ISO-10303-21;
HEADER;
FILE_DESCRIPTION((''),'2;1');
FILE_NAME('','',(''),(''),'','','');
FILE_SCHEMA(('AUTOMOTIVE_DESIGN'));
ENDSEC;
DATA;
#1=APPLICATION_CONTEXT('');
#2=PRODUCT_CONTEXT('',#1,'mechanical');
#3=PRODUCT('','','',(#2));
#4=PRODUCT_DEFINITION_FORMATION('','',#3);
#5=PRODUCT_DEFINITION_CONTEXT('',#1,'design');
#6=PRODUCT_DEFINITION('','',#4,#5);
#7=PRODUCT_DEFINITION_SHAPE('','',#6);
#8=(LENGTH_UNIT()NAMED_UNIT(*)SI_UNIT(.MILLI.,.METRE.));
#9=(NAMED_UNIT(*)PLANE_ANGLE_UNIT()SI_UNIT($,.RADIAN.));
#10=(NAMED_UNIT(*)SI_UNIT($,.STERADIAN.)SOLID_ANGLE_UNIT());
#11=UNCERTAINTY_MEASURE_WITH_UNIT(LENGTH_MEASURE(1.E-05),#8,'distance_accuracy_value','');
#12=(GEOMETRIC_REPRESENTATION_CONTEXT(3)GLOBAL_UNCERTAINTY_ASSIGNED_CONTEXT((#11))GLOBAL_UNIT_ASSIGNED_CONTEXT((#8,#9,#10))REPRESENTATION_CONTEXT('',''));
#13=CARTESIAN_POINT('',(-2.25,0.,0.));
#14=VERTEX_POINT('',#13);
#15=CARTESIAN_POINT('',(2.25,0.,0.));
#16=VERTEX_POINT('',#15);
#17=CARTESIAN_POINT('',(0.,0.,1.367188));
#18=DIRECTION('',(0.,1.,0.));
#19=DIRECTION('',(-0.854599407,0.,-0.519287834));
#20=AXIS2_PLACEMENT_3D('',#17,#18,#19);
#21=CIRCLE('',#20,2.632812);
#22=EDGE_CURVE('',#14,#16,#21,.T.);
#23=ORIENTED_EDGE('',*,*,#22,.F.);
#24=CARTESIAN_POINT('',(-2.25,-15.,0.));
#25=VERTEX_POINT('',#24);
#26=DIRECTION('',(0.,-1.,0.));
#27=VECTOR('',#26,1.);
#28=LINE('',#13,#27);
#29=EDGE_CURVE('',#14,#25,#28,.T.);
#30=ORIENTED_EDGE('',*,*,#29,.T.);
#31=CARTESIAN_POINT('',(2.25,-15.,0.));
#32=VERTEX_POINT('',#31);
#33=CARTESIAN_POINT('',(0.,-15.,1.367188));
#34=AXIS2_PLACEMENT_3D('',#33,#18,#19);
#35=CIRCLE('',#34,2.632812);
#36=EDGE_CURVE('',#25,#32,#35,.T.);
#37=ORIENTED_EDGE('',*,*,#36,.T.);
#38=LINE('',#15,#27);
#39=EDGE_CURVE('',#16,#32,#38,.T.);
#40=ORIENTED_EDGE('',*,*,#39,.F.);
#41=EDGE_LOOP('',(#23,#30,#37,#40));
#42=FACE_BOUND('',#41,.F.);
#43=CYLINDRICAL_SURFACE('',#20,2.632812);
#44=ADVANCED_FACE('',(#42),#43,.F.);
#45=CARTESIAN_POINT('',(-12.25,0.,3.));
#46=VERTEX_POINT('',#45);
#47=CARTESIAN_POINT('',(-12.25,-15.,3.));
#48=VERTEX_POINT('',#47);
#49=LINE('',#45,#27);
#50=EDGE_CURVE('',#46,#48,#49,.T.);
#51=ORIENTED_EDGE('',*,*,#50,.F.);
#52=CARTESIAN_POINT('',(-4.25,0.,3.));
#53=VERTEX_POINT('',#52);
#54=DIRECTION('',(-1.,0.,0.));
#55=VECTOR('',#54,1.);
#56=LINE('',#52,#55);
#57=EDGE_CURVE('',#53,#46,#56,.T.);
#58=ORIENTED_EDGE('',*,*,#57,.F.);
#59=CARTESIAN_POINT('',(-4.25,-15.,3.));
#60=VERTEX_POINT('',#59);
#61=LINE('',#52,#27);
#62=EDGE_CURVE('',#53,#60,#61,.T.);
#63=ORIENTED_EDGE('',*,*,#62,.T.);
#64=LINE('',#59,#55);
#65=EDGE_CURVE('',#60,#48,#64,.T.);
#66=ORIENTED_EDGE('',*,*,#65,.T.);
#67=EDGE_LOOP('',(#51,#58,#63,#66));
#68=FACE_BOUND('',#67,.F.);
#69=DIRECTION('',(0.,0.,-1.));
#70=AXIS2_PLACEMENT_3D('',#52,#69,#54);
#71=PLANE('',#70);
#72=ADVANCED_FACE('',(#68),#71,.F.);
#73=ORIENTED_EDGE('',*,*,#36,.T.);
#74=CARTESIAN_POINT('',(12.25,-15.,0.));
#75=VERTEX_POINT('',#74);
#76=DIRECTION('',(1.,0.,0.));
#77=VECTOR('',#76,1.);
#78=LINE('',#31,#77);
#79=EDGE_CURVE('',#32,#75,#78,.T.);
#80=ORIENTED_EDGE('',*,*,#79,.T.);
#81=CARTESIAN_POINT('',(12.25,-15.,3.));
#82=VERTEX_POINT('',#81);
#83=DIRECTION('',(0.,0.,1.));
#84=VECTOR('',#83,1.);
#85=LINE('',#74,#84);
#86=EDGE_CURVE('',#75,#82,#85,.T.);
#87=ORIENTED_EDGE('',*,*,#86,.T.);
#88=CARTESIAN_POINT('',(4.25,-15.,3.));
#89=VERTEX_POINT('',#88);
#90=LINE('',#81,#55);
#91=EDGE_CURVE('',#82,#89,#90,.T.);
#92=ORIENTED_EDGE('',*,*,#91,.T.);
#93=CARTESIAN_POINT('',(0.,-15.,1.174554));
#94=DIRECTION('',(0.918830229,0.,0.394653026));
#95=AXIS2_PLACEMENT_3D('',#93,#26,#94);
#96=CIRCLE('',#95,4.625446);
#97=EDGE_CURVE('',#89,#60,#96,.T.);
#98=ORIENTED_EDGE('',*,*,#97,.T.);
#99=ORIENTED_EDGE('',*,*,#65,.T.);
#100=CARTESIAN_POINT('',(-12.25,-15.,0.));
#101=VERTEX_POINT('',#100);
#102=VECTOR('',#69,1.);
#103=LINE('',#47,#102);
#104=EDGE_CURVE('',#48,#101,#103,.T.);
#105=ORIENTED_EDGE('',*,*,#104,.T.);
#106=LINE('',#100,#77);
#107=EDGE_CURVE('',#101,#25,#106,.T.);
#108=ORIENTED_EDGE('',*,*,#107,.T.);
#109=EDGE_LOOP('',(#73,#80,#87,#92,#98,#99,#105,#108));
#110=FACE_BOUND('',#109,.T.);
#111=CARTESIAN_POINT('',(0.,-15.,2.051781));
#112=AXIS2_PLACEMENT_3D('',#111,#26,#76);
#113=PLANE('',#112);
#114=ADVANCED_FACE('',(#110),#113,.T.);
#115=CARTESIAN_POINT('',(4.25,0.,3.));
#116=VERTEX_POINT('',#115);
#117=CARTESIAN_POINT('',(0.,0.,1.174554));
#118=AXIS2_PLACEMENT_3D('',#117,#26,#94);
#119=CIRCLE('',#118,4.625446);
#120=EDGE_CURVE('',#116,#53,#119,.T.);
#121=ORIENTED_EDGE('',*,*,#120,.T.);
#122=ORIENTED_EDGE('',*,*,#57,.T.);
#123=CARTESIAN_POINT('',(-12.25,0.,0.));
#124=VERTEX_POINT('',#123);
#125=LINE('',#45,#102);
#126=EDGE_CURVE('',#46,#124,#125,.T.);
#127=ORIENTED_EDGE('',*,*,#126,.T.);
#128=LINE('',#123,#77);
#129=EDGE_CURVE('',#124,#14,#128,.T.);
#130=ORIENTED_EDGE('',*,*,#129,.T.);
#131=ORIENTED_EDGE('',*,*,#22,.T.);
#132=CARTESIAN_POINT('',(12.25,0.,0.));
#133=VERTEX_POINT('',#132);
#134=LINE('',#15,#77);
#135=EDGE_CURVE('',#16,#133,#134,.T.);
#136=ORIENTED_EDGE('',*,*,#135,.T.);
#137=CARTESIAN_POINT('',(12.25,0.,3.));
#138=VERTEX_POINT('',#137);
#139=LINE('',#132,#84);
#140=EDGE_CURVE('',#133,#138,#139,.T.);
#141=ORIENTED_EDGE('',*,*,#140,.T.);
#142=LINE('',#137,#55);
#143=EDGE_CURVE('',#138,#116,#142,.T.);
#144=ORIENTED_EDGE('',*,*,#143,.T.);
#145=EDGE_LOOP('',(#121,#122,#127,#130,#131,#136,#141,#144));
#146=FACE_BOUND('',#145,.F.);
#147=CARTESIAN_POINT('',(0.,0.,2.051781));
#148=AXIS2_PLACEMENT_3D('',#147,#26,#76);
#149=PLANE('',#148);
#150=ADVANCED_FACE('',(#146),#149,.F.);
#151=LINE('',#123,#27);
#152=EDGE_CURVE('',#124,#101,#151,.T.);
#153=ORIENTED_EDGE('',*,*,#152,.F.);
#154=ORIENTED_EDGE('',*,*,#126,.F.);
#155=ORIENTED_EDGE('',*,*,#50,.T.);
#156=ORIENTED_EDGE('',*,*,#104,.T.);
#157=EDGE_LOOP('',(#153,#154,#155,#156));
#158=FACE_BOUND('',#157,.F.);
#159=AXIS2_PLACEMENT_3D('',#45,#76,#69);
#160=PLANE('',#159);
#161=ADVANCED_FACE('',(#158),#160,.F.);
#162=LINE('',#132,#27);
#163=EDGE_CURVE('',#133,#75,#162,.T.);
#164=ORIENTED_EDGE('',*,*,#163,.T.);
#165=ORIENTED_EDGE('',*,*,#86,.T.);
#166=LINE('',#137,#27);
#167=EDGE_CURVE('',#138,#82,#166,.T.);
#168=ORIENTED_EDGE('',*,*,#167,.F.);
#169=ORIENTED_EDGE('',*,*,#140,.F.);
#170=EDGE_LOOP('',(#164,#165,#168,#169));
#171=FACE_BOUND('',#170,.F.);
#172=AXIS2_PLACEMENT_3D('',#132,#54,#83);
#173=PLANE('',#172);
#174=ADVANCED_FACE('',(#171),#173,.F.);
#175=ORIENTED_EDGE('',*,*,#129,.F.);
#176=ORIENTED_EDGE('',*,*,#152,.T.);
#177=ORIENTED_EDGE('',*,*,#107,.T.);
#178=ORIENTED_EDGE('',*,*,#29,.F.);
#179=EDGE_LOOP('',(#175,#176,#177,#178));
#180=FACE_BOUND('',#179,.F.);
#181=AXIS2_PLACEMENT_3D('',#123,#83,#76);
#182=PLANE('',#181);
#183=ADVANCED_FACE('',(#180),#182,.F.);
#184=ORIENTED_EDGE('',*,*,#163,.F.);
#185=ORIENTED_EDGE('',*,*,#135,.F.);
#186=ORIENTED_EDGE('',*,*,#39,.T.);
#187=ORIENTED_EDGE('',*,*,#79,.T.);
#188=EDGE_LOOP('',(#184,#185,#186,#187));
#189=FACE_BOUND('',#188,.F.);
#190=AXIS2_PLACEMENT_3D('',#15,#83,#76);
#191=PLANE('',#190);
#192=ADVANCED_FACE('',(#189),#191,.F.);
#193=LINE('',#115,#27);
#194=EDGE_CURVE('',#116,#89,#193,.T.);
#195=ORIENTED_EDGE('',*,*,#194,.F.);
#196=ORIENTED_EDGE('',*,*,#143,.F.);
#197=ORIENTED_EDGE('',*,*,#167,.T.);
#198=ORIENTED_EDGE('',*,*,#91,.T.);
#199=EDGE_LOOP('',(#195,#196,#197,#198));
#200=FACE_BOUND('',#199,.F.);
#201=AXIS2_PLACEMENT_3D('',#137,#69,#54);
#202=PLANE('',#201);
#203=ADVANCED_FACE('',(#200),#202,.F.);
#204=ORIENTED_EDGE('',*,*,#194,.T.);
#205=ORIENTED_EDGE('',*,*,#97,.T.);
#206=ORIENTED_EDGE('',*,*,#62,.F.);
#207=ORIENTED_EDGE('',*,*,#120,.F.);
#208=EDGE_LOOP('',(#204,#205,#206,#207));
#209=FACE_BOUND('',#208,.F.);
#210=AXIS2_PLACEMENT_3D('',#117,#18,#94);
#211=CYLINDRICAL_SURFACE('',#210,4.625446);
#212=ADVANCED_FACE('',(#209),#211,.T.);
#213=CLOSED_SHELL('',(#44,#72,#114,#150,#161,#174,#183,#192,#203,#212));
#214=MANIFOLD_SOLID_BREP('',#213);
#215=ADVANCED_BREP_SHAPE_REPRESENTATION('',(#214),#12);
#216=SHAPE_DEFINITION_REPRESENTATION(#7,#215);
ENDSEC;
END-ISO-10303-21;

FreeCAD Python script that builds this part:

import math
import FreeCAD as App
import Part
import Sketcher
from FreeCAD import Vector
Q = App.Units.Quantity

doc = App.newDocument("Part")
body = doc.addObject("PartDesign::Body", "Body")

sketch1 = doc.addObject("Sketcher::SketchObject", "Sketch")
body.addObject(sketch1)
sketch1.AttachmentSupport = (doc.XZ_Plane, [""])
sketch1.MapMode = "FlatFace"
sketch1.addGeometry([
    Part.LineSegment(Vector(-12.2, 3, 0), Vector(-12.2, 0, 0)),
    Part.LineSegment(Vector(-12.2, 0, 0), Vector(-2.2, 0, 0)),
    Part.ArcOfCircle(Part.Circle(Vector(0, 1.4, 0), Vector(0, 0, 1), 2.6), math.radians(-31), math.radians(211)),
    Part.LineSegment(Vector(2.2, 0, 0), Vector(12.2, 0, 0)),
    Part.LineSegment(Vector(12.2, 0, 0), Vector(12.2, 3, 0)),
    Part.LineSegment(Vector(12.2, 3, 0), Vector(4.2, 3, 0)),
    Part.ArcOfCircle(Part.Circle(Vector(0, 1.2, 0), Vector(0, 0, 1), 4.6), math.radians(23), math.radians(157)),
    Part.LineSegment(Vector(-4.2, 3, 0), Vector(-12.2, 3, 0)),
], False)
sketch1.addConstraint([
    Sketcher.Constraint("Coincident", 0, 2, 1, 1),
    Sketcher.Constraint("Coincident", 1, 2, 2, 2),
    Sketcher.Constraint("Coincident", 2, 1, 3, 1),
    Sketcher.Constraint("Coincident", 3, 2, 4, 1),
    Sketcher.Constraint("Coincident", 4, 2, 5, 1),
    Sketcher.Constraint("Coincident", 5, 2, 6, 1),
    Sketcher.Constraint("Coincident", 6, 2, 7, 1),
    Sketcher.Constraint("Coincident", 7, 2, 0, 1),
    Sketcher.Constraint("Vertical", 0),
    Sketcher.Constraint("Horizontal", 1),
    Sketcher.Constraint("Horizontal", 3),
    Sketcher.Constraint("Vertical", 4),
    Sketcher.Constraint("Horizontal", 5),
    Sketcher.Constraint("Horizontal", 7),
    Sketcher.Constraint("Symmetric", 1, 2, 2, 1, -1, 1),
    Sketcher.Constraint("Symmetric", 0, 2, 3, 2, -2),
    Sketcher.Constraint("Symmetric", 5, 2, 6, 2, -2),
    Sketcher.Constraint("DistanceX", 1, 1, 1, 2, Q("10 mm")),
    Sketcher.Constraint("DistanceX", 5, 2, 5, 1, Q("8 mm")),
    Sketcher.Constraint("DistanceY", 0, 2, 0, 1, Q("3 mm")),
    Sketcher.Constraint("DistanceX", 1, 2, 2, 1, Q("4.5 mm")),
    Sketcher.Constraint("Radius", 2, Q("2.632812 mm")),
    Sketcher.Constraint("Radius", 6, Q("4.625446 mm")),
])
pad1 = doc.addObject("PartDesign::Pad", "Pad")
body.addObject(pad1)
pad1.Profile = sketch1
pad1.Length = 15

doc.recompute()
